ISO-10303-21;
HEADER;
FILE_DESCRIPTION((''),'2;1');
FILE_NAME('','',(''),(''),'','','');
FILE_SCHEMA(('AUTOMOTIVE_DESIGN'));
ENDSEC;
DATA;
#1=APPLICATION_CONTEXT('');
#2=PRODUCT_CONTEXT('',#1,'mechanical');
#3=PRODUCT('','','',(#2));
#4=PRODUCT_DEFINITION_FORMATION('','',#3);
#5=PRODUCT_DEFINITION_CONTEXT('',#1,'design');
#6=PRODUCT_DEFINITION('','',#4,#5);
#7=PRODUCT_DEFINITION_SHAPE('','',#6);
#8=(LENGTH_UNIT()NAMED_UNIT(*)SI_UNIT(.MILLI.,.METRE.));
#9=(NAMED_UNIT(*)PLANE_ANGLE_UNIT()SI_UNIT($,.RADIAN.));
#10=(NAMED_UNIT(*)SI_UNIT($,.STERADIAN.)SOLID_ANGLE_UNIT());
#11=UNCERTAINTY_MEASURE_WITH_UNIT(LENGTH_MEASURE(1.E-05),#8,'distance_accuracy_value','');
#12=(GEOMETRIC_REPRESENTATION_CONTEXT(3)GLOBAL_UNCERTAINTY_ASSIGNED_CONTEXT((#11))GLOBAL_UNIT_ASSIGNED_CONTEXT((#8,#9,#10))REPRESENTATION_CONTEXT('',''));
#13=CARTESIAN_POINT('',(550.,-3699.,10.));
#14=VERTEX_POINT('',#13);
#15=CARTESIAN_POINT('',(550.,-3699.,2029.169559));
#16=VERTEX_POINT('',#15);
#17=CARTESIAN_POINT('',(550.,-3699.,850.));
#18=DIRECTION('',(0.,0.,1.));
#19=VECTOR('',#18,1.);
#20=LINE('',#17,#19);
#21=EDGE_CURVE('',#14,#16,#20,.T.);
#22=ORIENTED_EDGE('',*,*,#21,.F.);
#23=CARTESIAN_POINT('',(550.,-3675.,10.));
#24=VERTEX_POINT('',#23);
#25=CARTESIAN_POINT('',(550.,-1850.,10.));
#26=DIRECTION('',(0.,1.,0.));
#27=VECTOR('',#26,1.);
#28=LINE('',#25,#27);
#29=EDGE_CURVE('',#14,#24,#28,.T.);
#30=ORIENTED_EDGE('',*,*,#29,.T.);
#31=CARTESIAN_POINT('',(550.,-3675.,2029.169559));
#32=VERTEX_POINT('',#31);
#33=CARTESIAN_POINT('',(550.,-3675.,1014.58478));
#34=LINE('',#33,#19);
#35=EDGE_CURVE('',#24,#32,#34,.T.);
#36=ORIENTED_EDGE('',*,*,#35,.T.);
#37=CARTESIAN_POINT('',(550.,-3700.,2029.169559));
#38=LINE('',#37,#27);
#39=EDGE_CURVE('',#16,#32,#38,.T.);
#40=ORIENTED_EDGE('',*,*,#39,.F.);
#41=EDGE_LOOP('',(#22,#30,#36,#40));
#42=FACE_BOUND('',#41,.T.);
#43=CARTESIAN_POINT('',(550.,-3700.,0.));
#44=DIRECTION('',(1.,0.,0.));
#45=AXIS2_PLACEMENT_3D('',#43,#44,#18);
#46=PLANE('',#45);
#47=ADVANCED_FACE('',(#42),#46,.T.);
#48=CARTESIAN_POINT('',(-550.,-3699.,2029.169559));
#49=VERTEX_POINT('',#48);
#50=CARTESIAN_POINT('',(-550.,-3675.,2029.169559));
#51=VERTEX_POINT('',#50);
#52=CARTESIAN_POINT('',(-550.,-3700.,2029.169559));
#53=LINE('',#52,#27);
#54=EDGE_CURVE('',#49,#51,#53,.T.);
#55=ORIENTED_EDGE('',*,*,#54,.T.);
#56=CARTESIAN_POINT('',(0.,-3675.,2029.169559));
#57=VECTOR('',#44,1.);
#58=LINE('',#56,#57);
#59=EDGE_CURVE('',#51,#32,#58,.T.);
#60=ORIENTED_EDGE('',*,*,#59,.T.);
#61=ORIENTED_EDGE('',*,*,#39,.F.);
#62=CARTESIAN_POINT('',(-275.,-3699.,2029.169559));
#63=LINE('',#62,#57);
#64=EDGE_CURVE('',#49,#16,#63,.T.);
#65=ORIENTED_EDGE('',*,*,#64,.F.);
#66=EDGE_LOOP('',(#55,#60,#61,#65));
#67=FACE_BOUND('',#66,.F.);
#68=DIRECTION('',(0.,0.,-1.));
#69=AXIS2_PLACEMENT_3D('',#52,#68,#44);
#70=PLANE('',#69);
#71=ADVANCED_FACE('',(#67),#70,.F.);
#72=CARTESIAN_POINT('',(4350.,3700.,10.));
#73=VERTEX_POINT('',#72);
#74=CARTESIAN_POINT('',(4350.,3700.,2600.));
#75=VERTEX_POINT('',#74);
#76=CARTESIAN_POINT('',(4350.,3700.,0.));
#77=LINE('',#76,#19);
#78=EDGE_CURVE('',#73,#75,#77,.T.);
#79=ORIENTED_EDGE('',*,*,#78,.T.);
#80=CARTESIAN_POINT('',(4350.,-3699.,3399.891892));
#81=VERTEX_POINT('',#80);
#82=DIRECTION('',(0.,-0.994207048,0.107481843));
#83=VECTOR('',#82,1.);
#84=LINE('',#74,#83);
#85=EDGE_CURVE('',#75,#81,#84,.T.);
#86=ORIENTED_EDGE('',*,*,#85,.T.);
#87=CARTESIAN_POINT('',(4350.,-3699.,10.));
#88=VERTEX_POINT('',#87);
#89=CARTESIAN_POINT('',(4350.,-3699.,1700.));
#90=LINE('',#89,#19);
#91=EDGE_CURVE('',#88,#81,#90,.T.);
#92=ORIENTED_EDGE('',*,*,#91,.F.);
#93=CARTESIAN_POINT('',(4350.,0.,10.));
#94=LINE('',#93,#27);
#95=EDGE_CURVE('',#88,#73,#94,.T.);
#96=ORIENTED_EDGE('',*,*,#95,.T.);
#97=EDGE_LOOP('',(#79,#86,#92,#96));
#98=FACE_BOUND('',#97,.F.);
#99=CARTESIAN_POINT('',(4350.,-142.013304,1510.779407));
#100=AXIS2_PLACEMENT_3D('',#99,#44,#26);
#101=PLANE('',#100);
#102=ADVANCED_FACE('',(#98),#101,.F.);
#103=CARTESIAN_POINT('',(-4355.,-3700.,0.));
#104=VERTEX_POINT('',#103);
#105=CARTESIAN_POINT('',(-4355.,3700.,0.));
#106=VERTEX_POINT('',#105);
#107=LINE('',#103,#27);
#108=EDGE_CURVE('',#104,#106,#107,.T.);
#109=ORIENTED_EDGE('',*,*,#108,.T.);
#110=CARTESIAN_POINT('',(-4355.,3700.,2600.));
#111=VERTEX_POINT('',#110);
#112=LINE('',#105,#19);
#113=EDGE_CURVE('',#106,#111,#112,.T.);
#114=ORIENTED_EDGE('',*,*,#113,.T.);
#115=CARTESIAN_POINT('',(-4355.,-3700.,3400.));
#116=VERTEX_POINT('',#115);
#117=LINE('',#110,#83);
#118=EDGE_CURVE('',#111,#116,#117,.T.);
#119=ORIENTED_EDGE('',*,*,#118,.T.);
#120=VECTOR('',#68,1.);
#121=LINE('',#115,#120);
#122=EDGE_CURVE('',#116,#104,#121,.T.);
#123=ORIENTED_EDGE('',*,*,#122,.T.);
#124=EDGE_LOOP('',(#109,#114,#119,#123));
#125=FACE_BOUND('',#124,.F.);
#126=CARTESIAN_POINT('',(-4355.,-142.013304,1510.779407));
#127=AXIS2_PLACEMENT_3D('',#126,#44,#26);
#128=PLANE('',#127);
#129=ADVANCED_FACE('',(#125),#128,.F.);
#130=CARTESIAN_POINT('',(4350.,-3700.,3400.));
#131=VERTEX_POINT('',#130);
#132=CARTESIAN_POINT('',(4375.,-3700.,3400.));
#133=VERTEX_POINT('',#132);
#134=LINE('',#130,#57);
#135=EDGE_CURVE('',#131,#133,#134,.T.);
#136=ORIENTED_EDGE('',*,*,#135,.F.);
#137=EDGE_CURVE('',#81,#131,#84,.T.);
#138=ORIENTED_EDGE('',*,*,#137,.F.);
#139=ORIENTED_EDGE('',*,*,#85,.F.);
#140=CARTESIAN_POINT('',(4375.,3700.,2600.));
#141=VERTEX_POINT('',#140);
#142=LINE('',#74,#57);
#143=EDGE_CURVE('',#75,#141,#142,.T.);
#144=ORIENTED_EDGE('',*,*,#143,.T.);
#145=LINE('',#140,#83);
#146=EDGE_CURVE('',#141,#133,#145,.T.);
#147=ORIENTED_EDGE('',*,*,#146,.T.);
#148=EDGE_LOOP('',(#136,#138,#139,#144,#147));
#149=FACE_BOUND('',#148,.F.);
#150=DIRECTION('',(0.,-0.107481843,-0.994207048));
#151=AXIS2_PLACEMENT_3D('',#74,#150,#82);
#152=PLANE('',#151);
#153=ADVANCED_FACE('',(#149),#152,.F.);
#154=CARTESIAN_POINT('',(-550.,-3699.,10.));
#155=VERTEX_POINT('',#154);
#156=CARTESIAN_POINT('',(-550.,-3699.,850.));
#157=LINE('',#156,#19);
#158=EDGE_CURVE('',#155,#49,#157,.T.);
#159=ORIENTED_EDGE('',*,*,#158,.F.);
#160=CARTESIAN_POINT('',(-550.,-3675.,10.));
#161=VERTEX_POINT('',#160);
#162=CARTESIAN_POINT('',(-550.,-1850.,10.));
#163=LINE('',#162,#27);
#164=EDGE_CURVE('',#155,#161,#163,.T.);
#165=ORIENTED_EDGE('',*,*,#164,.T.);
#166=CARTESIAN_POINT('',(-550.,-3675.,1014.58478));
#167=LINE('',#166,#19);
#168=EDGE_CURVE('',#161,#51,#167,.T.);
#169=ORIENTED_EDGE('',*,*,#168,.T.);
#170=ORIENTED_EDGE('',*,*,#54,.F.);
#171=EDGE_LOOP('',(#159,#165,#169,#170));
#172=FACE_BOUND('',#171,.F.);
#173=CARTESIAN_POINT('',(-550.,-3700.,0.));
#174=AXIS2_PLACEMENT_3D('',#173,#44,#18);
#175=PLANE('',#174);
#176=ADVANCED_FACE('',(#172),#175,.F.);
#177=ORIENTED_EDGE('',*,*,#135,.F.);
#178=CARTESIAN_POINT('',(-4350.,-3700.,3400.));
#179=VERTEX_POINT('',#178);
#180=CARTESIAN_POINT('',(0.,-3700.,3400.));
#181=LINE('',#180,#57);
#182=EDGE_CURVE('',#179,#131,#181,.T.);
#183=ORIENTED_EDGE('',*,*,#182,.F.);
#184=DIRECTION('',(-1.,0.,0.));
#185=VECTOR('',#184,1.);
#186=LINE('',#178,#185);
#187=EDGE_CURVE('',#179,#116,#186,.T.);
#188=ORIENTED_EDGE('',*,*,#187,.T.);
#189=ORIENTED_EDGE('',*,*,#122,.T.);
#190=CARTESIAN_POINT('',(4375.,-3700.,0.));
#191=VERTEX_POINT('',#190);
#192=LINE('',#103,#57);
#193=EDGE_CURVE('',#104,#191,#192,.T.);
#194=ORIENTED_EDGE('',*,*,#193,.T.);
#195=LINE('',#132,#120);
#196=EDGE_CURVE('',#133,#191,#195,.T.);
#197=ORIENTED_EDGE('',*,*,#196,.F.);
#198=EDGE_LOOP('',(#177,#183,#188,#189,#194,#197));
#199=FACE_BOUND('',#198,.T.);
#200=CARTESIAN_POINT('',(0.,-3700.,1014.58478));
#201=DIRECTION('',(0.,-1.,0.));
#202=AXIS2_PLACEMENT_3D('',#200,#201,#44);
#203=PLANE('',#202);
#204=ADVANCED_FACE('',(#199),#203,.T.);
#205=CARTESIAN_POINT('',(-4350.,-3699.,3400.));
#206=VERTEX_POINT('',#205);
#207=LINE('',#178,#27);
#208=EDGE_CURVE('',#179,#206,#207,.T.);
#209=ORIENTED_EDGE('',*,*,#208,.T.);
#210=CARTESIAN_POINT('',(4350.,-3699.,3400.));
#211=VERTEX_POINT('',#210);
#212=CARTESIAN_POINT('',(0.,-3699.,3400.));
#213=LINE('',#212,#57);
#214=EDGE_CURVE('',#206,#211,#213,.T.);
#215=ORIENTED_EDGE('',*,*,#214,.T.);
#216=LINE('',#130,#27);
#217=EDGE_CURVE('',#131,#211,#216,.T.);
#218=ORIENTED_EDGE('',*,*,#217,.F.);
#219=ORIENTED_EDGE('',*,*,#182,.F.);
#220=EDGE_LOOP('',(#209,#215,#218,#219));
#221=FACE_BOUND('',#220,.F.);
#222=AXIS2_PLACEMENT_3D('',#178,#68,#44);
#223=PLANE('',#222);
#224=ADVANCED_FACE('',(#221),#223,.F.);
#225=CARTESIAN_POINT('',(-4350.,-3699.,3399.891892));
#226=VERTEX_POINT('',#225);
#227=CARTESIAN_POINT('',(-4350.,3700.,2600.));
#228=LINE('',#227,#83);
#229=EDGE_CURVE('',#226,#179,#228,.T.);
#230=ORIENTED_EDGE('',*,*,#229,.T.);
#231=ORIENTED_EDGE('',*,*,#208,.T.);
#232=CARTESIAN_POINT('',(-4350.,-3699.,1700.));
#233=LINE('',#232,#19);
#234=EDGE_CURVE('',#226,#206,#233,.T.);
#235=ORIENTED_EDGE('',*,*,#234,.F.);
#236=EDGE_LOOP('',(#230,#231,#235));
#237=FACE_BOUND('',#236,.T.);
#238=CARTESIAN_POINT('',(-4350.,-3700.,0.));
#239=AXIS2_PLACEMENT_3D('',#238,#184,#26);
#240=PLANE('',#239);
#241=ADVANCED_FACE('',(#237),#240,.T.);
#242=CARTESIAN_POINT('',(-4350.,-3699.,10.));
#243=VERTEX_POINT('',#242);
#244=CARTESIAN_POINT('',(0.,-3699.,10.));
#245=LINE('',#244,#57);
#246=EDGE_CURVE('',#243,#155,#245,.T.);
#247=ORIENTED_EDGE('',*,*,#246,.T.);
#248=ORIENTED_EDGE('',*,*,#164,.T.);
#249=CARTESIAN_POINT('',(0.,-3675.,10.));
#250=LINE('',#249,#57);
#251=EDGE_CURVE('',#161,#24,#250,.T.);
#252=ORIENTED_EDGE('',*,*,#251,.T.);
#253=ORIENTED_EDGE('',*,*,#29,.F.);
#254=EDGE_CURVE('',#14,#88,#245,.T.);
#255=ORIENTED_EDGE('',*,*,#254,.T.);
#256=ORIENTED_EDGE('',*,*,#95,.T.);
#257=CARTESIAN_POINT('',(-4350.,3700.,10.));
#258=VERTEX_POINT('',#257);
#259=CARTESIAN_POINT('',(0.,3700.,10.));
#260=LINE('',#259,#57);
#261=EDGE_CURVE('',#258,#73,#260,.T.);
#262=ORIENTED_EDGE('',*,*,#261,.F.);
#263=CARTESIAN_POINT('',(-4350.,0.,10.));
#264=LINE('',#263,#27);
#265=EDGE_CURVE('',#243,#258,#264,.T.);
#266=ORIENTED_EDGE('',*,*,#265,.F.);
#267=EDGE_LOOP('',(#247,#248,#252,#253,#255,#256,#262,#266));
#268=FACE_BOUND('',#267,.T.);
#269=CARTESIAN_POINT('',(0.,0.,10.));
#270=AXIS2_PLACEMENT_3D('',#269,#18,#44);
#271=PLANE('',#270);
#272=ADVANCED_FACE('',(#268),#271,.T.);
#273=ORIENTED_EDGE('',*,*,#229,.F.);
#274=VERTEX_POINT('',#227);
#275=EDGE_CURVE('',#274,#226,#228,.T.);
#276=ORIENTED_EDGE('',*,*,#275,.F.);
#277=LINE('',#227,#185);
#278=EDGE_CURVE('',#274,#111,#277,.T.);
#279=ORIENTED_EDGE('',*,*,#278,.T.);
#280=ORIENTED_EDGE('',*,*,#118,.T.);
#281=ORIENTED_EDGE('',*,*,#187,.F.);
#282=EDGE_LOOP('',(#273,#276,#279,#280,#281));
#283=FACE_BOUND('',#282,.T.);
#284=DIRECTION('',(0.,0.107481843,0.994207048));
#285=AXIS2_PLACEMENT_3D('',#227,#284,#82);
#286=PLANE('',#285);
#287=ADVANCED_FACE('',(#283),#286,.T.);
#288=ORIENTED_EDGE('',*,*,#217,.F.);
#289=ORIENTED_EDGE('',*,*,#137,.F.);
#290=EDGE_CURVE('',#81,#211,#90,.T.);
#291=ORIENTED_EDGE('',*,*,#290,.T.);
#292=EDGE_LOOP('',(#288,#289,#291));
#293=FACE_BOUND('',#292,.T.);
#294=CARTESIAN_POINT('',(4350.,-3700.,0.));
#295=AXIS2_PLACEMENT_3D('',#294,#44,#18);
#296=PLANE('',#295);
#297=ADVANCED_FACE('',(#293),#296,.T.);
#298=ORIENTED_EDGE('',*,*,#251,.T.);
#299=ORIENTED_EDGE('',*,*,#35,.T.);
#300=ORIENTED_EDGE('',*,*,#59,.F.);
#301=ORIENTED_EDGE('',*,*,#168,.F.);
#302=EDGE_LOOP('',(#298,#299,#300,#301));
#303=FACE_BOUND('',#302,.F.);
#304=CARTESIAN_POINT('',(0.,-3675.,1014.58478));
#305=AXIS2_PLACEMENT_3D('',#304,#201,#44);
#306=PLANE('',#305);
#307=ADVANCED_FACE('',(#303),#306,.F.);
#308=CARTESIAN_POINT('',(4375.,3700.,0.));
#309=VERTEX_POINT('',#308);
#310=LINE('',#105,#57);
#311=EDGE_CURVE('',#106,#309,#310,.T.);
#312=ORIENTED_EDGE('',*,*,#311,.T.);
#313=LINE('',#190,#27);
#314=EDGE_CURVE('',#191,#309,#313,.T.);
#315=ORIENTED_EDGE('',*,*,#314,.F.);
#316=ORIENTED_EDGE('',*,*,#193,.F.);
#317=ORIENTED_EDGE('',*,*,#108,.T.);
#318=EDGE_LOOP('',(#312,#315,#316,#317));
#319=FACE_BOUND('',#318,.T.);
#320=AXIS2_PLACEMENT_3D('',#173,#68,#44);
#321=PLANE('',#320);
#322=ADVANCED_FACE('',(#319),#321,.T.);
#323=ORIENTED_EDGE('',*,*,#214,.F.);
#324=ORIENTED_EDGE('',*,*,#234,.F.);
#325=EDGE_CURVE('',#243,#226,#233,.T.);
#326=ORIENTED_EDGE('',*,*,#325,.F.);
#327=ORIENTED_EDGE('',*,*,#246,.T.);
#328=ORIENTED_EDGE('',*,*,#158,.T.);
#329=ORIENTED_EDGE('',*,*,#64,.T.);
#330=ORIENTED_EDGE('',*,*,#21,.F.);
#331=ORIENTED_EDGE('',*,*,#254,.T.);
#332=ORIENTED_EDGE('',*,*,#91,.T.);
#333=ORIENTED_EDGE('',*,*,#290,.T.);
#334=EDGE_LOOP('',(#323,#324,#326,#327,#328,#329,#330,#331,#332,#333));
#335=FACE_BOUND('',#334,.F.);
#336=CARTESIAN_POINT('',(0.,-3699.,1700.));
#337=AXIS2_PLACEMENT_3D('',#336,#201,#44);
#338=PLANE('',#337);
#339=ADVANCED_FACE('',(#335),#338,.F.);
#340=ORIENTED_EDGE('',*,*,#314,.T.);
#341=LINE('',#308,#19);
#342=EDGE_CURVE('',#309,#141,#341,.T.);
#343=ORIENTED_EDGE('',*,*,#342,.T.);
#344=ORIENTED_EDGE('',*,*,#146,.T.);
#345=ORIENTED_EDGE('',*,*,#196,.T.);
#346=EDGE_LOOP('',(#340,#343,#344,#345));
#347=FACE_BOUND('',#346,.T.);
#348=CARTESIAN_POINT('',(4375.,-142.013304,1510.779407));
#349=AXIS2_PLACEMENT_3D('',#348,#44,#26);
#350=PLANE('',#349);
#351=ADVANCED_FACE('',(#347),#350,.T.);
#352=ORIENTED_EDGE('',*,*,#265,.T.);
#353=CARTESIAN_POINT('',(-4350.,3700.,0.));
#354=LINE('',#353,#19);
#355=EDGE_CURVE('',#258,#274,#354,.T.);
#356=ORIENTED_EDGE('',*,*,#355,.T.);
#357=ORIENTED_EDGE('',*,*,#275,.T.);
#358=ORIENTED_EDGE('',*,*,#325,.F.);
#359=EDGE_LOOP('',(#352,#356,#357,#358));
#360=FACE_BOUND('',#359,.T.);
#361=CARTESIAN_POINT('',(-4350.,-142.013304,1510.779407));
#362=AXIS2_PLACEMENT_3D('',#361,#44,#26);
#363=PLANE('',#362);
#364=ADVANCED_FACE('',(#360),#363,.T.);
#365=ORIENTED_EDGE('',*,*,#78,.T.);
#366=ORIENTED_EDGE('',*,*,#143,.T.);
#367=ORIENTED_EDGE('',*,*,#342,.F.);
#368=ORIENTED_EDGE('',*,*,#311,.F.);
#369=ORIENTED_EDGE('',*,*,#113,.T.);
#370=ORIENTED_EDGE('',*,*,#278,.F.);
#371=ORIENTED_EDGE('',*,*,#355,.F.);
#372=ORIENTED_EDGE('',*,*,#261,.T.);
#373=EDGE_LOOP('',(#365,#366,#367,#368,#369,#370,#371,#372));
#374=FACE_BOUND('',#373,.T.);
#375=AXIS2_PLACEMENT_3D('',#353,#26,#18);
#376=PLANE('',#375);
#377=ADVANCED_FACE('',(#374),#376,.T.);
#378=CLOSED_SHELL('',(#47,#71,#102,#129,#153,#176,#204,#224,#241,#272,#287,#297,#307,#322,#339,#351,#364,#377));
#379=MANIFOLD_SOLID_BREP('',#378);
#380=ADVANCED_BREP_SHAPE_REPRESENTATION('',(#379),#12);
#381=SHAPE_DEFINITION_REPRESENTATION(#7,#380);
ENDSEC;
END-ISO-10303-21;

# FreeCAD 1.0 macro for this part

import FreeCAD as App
import Part
import Sketcher
from FreeCAD import Vector
Q = App.Units.Quantity


def add_polygon(sketch, points):
    """Adds a closed chain of lines whose ends are joined by coincident constraints."""
    first, n = sketch.GeometryCount, len(points)
    for a, b in zip(points, points[1:] + points[:1]):
        sketch.addGeometry(Part.LineSegment(App.Vector(*a, 0), App.Vector(*b, 0)), False)
    for i in range(n):
        sketch.addConstraint(Sketcher.Constraint("Coincident", first + i, 2, first + (i + 1) % n, 1))

doc = App.newDocument("Part")
body = doc.addObject("PartDesign::Body", "Body")

sketch1 = doc.addObject("Sketcher::SketchObject", "Sketch")
body.addObject(sketch1)
sketch1.AttachmentSupport = (doc.YZ_Plane, [""])
sketch1.MapMode = "FlatFace"
sketch1.AttachmentOffset = App.Placement(Vector(0, 0, 4350), App.Rotation())
add_polygon(sketch1, [(-3700, 3400), (-3700, 0), (3700, 0), (3700, 2600)])
sketch1.addConstraint(Sketcher.Constraint("Vertical", 0))
sketch1.addConstraint(Sketcher.Constraint("Horizontal", 1))
sketch1.addConstraint(Sketcher.Constraint("Vertical", 2))
sketch1.addConstraint(Sketcher.Constraint("Symmetric", 0, 2, 1, 2, -1, 1))
sketch1.addConstraint(Sketcher.Constraint("DistanceX", 1, 1, 1, 2, Q("7400 mm")))
sketch1.addConstraint(Sketcher.Constraint("DistanceY", 0, 2, 0, 1, Q("3400 mm")))
sketch1.addConstraint(Sketcher.Constraint("DistanceY", 2, 1, 2, 2, Q("2600 mm")))
pad1 = doc.addObject("PartDesign::Pad", "Pad")
body.addObject(pad1)
pad1.Profile = sketch1
pad1.Length = 25

sketch2 = doc.addObject("Sketcher::SketchObject", "Sketch001")
body.addObject(sketch2)
sketch2.AttachmentSupport = (doc.XY_Plane, [""])
sketch2.MapMode = "FlatFace"
add_polygon(sketch2, [(-4350, 3700), (-4350, -3700), (4350, -3700), (4350, 3700)])
sketch2.addConstraint(Sketcher.Constraint("Vertical", 0))
sketch2.addConstraint(Sketcher.Constraint("Horizontal", 1))
sketch2.addConstraint(Sketcher.Constraint("Vertical", 2))
sketch2.addConstraint(Sketcher.Constraint("Horizontal", 3))
sketch2.addConstraint(Sketcher.Constraint("Symmetric", 0, 2, 2, 2, -1, 1))
sketch2.addConstraint(Sketcher.Constraint("DistanceX", 1, 1, 1, 2, Q("8700 mm")))
sketch2.addConstraint(Sketcher.Constraint("DistanceY", 0, 2, 0, 1, Q("7400 mm")))
pad2 = doc.addObject("PartDesign::Pad", "Pad001")
body.addObject(pad2)
pad2.Profile = sketch2
pad2.Length = 10

sketch3 = doc.addObject("Sketcher::SketchObject", "Sketch002")
body.addObject(sketch3)
sketch3.AttachmentSupport = (doc.XZ_Plane, [""])
sketch3.MapMode = "FlatFace"
sketch3.AttachmentOffset = App.Placement(Vector(0, 0, 3700), App.Rotation())
add_polygon(sketch3, [(-4350, 3400), (-4350, 0), (4350, 0), (4350, 3400)])
sketch3.addConstraint(Sketcher.Constraint("Vertical", 0))
sketch3.addConstraint(Sketcher.Constraint("Horizontal", 1))
sketch3.addConstraint(Sketcher.Constraint("Vertical", 2))
sketch3.addConstraint(Sketcher.Constraint("Horizontal", 3))
sketch3.addConstraint(Sketcher.Constraint("Symmetric", 0, 2, 1, 2, -1, 1))
sketch3.addConstraint(Sketcher.Constraint("DistanceX", 1, 1, 1, 2, Q("8700 mm")))
sketch3.addConstraint(Sketcher.Constraint("DistanceY", 0, 2, 0, 1, Q("3400 mm")))
pad3 = doc.addObject("PartDesign::Pad", "Pad002")
body.addObject(pad3)
pad3.Profile = sketch3
pad3.Length = 1
pad3.Reversed = True

sketch4 = doc.addObject("Sketcher::SketchObject", "Sketch003")
body.addObject(sketch4)
sketch4.AttachmentSupport = (doc.YZ_Plane, [""])
sketch4.MapMode = "FlatFace"
sketch4.AttachmentOffset = App.Placement(Vector(0, 0, -4350), App.Rotation())
add_polygon(sketch4, [(-3700, 3400), (-3700, 0), (3700, 0), (3700, 2600)])
sketch4.addConstraint(Sketcher.Constraint("Vertical", 0))
sketch4.addConstraint(Sketcher.Constraint("Horizontal", 1))
sketch4.addConstraint(Sketcher.Constraint("Vertical", 2))
sketch4.addConstraint(Sketcher.Constraint("Symmetric", 0, 2, 1, 2, -1, 1))
sketch4.addConstraint(Sketcher.Constraint("DistanceX", 1, 1, 1, 2, Q("7400 mm")))
sketch4.addConstraint(Sketcher.Constraint("DistanceY", 0, 2, 0, 1, Q("3400 mm")))
sketch4.addConstraint(Sketcher.Constraint("DistanceY", 2, 1, 2, 2, Q("2600 mm")))
pad4 = doc.addObject("PartDesign::Pad", "Pad003")
body.addObject(pad4)
pad4.Profile = sketch4
pad4.Length = 5
pad4.Reversed = True

sketch5 = doc.addObject("Sketcher::SketchObject", "Sketch004")
body.addObject(sketch5)
sketch5.AttachmentSupport = (doc.XZ_Plane, [""])
sketch5.MapMode = "FlatFace"
sketch5.AttachmentOffset = App.Placement(Vector(0, 0, 3700), App.Rotation())
add_polygon(sketch5, [(-550, 2029), (-550, 0), (550, 0), (550, 2029)])
sketch5.addConstraint(Sketcher.Constraint("Vertical", 0))
sketch5.addConstraint(Sketcher.Constraint("Horizontal", 1))
sketch5.addConstraint(Sketcher.Constraint("Vertical", 2))
sketch5.addConstraint(Sketcher.Constraint("Horizontal", 3))
sketch5.addConstraint(Sketcher.Constraint("Symmetric", 0, 2, 1, 2, -1, 1))
sketch5.addConstraint(Sketcher.Constraint("DistanceX", 1, 1, 1, 2, Q("1100 mm")))
sketch5.addConstraint(Sketcher.Constraint("DistanceY", 0, 2, 0, 1, Q("2029.169559 mm")))
pad5 = doc.addObject("PartDesign::Pad", "Pad004")
body.addObject(pad5)
pad5.Profile = sketch5
pad5.Length = 25
pad5.Reversed = True

doc.recompute()
